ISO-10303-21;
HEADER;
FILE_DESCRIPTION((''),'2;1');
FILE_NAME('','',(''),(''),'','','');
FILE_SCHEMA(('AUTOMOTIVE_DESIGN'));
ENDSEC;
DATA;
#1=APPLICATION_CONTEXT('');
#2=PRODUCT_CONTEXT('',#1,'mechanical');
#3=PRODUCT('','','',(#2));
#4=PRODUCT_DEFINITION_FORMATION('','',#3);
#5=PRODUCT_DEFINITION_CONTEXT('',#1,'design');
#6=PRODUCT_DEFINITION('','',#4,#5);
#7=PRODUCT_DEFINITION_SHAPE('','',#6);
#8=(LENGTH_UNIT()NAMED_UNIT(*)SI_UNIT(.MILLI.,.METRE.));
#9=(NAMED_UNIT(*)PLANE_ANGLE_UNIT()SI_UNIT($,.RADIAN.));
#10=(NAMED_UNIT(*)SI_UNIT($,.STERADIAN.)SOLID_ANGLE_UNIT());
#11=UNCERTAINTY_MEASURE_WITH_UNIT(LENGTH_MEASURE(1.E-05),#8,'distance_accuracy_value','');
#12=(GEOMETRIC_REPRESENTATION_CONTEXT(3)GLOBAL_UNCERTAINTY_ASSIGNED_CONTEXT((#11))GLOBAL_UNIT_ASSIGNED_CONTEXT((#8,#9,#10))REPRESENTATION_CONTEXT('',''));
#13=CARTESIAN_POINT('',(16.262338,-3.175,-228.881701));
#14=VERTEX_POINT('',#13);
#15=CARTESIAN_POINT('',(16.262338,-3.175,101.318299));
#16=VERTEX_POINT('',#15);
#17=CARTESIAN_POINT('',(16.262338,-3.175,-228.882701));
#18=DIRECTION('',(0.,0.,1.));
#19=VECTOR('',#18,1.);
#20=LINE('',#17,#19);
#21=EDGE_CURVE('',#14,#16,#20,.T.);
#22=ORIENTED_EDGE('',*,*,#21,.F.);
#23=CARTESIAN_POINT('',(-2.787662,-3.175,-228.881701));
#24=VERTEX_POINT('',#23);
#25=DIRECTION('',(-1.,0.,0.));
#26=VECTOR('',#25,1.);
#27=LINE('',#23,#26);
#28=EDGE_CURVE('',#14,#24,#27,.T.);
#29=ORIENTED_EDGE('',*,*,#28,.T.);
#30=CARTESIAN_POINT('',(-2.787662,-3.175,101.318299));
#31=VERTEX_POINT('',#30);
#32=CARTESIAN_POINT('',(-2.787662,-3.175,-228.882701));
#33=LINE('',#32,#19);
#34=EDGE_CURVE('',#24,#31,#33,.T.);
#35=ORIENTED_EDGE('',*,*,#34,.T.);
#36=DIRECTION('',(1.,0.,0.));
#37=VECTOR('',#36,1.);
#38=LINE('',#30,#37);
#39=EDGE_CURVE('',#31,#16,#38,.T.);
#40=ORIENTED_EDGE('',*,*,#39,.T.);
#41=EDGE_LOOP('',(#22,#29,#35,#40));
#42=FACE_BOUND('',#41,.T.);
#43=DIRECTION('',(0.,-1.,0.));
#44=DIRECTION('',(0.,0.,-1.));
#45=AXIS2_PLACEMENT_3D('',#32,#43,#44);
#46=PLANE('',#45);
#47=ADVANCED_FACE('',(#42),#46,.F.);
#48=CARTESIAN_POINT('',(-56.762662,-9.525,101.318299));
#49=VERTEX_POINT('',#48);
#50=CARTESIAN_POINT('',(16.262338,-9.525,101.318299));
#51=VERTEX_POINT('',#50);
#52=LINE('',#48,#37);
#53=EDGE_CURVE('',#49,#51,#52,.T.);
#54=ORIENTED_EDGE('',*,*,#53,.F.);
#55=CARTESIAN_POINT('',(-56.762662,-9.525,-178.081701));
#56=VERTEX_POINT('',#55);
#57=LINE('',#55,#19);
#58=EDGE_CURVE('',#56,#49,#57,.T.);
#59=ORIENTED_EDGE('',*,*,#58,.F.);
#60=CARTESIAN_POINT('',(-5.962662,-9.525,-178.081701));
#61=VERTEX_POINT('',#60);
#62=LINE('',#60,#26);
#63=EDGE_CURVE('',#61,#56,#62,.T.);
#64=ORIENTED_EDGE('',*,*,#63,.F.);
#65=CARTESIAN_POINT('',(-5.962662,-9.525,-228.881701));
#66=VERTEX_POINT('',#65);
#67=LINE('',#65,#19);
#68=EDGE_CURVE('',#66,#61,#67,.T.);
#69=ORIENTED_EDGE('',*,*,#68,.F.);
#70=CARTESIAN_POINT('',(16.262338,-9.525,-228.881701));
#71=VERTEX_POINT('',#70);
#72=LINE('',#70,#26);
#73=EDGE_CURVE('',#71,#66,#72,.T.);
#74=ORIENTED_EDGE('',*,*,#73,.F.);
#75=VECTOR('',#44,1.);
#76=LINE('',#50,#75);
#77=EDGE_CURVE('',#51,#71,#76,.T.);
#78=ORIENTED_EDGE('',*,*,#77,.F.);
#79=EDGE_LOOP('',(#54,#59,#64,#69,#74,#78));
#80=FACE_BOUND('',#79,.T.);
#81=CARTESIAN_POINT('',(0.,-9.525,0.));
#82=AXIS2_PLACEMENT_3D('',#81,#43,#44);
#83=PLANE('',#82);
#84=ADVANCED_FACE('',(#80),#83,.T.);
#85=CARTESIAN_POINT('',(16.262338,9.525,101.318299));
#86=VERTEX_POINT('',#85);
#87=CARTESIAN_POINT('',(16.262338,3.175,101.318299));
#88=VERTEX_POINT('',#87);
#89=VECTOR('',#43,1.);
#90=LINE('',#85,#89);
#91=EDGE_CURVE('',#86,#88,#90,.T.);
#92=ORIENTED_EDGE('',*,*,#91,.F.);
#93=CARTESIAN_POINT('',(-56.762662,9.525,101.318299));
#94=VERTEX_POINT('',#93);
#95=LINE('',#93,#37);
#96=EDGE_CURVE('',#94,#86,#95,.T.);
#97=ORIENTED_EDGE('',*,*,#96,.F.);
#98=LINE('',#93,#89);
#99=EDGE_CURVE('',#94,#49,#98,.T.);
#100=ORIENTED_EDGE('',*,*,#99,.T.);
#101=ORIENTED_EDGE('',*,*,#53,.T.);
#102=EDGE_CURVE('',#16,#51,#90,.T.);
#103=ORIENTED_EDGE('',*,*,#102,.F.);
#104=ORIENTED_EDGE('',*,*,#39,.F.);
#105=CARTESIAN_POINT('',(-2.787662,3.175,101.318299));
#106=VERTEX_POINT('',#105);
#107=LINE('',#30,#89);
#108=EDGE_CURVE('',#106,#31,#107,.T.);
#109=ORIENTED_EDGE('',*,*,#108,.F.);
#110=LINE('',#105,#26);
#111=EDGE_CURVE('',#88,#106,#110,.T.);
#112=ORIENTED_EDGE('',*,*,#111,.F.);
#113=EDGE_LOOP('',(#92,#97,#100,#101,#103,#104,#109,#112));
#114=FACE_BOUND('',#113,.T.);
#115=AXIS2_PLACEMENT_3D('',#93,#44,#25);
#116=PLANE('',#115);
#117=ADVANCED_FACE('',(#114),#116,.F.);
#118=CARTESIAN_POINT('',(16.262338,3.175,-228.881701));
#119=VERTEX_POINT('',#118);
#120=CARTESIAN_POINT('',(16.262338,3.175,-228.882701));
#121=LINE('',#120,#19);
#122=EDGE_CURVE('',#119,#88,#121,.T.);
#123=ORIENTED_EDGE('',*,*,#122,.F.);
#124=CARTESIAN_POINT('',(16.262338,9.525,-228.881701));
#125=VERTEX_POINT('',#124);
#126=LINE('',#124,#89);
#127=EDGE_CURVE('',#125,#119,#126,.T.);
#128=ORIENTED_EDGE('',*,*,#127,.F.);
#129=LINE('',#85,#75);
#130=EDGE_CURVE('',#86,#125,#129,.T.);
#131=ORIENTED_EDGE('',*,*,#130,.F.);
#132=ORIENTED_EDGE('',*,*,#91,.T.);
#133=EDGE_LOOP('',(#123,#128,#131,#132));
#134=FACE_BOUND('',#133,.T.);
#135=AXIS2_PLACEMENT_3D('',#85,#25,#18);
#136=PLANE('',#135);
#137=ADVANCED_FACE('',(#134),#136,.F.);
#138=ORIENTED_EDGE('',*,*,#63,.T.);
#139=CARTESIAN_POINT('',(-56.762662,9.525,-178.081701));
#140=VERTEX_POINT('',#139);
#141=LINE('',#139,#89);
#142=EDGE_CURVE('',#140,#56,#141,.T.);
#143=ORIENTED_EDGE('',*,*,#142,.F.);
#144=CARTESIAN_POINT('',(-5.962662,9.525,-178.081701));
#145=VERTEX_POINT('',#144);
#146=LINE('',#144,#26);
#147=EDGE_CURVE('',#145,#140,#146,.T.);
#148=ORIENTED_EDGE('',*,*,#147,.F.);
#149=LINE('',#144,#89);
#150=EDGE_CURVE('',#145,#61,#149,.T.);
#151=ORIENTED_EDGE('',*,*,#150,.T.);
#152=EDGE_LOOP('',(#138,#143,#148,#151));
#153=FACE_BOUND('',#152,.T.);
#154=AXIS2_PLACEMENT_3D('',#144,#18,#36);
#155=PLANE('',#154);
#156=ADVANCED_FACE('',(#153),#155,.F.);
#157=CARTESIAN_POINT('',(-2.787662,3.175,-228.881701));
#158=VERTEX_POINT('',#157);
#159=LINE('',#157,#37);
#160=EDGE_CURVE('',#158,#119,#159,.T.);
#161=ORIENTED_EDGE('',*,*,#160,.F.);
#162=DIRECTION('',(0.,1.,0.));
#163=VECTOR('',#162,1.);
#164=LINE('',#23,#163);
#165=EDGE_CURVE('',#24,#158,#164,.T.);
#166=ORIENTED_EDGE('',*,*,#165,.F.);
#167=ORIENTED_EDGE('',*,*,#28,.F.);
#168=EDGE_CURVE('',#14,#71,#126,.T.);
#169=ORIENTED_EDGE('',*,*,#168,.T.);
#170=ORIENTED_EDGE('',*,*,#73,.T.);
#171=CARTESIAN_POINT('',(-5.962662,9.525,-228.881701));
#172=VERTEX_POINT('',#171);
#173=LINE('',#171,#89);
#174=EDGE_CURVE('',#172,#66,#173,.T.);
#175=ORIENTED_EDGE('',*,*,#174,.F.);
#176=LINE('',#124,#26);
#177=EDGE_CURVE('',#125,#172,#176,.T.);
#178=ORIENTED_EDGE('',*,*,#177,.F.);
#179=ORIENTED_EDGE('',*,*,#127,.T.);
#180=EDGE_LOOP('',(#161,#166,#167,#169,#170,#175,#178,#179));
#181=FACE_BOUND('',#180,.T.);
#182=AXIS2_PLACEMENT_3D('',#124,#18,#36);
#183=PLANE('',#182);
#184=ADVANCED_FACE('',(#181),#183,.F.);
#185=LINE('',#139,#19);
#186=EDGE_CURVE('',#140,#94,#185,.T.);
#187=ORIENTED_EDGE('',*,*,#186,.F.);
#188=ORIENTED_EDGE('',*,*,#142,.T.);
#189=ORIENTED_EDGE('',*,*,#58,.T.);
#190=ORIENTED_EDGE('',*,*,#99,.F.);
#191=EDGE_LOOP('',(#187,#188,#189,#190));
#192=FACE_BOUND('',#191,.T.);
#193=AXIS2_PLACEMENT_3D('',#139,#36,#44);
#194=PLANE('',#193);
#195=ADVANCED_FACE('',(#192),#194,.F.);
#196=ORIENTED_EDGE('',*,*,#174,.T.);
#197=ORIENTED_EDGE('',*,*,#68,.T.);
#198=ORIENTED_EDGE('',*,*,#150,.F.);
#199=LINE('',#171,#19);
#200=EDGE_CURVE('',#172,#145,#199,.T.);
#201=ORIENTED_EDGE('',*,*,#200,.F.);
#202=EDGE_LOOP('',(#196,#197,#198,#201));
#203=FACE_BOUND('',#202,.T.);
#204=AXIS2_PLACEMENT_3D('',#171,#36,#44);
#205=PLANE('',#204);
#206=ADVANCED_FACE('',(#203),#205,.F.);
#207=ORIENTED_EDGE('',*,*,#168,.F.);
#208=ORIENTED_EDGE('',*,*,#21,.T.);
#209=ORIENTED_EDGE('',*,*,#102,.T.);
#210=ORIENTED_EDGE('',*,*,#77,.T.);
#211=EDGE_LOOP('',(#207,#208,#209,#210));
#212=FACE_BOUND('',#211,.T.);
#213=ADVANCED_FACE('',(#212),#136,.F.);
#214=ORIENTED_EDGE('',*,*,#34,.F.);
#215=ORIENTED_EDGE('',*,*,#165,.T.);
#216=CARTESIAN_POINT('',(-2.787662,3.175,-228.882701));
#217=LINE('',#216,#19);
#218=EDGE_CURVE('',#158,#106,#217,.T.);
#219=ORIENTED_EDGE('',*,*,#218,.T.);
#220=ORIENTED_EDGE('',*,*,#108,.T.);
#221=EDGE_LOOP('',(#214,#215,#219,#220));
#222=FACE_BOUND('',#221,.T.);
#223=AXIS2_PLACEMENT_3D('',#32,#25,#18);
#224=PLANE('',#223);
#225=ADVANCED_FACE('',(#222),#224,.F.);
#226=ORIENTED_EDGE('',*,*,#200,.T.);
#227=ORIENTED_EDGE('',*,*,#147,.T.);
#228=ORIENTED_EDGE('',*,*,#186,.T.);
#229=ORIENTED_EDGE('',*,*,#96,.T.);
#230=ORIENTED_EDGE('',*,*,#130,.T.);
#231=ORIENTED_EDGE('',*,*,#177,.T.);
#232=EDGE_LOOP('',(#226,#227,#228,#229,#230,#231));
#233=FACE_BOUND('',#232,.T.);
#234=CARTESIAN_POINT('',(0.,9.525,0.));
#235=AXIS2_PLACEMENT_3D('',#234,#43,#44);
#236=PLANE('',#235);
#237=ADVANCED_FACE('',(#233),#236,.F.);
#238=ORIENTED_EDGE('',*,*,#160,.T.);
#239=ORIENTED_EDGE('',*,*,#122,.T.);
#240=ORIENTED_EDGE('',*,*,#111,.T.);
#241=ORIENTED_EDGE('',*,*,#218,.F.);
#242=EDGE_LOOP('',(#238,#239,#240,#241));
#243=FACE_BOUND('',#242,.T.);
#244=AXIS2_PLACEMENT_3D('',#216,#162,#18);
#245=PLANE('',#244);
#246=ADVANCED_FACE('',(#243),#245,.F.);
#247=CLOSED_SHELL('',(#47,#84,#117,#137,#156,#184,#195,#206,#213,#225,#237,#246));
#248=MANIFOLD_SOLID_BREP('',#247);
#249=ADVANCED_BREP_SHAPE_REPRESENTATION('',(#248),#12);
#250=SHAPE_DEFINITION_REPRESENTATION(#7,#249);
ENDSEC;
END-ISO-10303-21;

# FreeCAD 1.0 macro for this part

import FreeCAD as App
import Part
import Sketcher

V = App.Vector
Q = App.Units.Quantity

doc = App.newDocument("Part")
params = doc.addObject("Spreadsheet::Sheet", "Params")
for row, (alias, value) in enumerate([
    ("sketch1_width", "2 in"),
    ("sketch1_height", "13 in"),
    ("sketch1_width2", "2.875 in"),
    ("pad1_length", "0.75 in"),
    ("sketch2_width", "0.75 in"),
    ("sketch2_height", "0.25 in"),
], start=1):
    params.set(f"A{row}", alias)
    params.set(f"B{row}", "=" + value)
    params.setAlias(f"B{row}", alias)

body = doc.addObject("PartDesign::Body", "Body")

sketch1 = doc.addObject("Sketcher::SketchObject", "Sketch")
body.addObject(sketch1)
sketch1.AttachmentSupport = (doc.XZ_Plane, [""])
sketch1.MapMode = "FlatFace"
sketch1.addGeometry(Part.LineSegment(V(-56.762662, 101.318299, 0), V(16.262338, 101.318299, 0)), False)
sketch1.addGeometry(Part.LineSegment(V(16.262338, 101.318299, 0), V(16.262338, -228.881701, 0)), False)
sketch1.addGeometry(Part.LineSegment(V(16.262338, -228.881701, 0), V(-5.962662, -228.881701, 0)), False)
sketch1.addGeometry(Part.LineSegment(V(-5.962662, -228.881701, 0), V(-5.962662, -178.081701, 0)), False)
sketch1.addGeometry(Part.LineSegment(V(-5.962662, -178.081701, 0), V(-56.762662, -178.081701, 0)), False)
sketch1.addGeometry(Part.LineSegment(V(-56.762662, -178.081701, 0), V(-56.762662, 101.318299, 0)), False)
sketch1.addConstraint(Sketcher.Constraint("Coincident", 0, 2, 1, 1))
sketch1.addConstraint(Sketcher.Constraint("Coincident", 1, 2, 2, 1))
sketch1.addConstraint(Sketcher.Constraint("Coincident", 2, 2, 3, 1))
sketch1.addConstraint(Sketcher.Constraint("Coincident", 3, 2, 4, 1))
sketch1.addConstraint(Sketcher.Constraint("Coincident", 4, 2, 5, 1))
sketch1.addConstraint(Sketcher.Constraint("Coincident", 5, 2, 0, 1))
sketch1.addConstraint(Sketcher.Constraint("Horizontal", 0))
sketch1.addConstraint(Sketcher.Constraint("Vertical", 1))
sketch1.addConstraint(Sketcher.Constraint("Horizontal", 2))
sketch1.addConstraint(Sketcher.Constraint("Vertical", 3))
sketch1.addConstraint(Sketcher.Constraint("Horizontal", 4))
sketch1.addConstraint(Sketcher.Constraint("Vertical", 5))
sketch1.addConstraint(Sketcher.Constraint("Equal", 4, 3))
sketch1.addConstraint(Sketcher.Constraint("DistanceX", 4, 2, 4, 1, Q("2 in")))
sketch1.addConstraint(Sketcher.Constraint("DistanceY", 1, 2, 1, 1, Q("13 in")))
sketch1.addConstraint(Sketcher.Constraint("DistanceX", 0, 1, 0, 2, Q("2.875 in")))
sketch1.addConstraint(Sketcher.Constraint("DistanceY", -1, 1, 0, 2, Q("101.318299 mm")))
sketch1.addConstraint(Sketcher.Constraint("DistanceX", -1, 1, 0, 2, Q("16.262338 mm")))
sketch1.setExpression("Constraints[13]", "Params.sketch1_width")
sketch1.setExpression("Constraints[14]", "Params.sketch1_height")
sketch1.setExpression("Constraints[15]", "Params.sketch1_width2")
pad1 = doc.addObject("PartDesign::Pad", "Pad")
body.addObject(pad1)
pad1.Profile = sketch1
pad1.setExpression("Length", "Params.pad1_length")
pad1.Midplane = True

sketch2 = doc.addObject("Sketcher::SketchObject", "Sketch001")
body.addObject(sketch2)
sketch2.AttachmentSupport = (doc.XY_Plane, [""])
sketch2.MapMode = "FlatFace"
sketch2.AttachmentOffset = App.Placement(V(0, 0, 101.318299), App.Rotation())
sketch2.addGeometry(Part.LineSegment(V(-2.787662, 3.175, 0), V(-2.787662, -3.175, 0)), False)
sketch2.addGeometry(Part.LineSegment(V(-2.787662, -3.175, 0), V(16.262338, -3.175, 0)), False)
sketch2.addGeometry(Part.LineSegment(V(16.262338, -3.175, 0), V(16.262338, 3.175, 0)), False)
sketch2.addGeometry(Part.LineSegment(V(16.262338, 3.175, 0), V(-2.787662, 3.175, 0)), False)
sketch2.addConstraint(Sketcher.Constraint("Coincident", 0, 2, 1, 1))
sketch2.addConstraint(Sketcher.Constraint("Coincident", 1, 2, 2, 1))
sketch2.addConstraint(Sketcher.Constraint("Coincident", 2, 2, 3, 1))
sketch2.addConstraint(Sketcher.Constraint("Coincident", 3, 2, 0, 1))
sketch2.addConstraint(Sketcher.Constraint("Vertical", 0))
sketch2.addConstraint(Sketcher.Constraint("Horizontal", 1))
sketch2.addConstraint(Sketcher.Constraint("Vertical", 2))
sketch2.addConstraint(Sketcher.Constraint("Horizontal", 3))
sketch2.addConstraint(Sketcher.Constraint("DistanceX", 1, 1, 1, 2, Q("0.75 in")))
sketch2.addConstraint(Sketcher.Constraint("DistanceY", 0, 2, 0, 1, Q("0.25 in")))
sketch2.addConstraint(Sketcher.Constraint("DistanceY", 0, 2, -1, 1, Q("0.125 in")))
sketch2.addConstraint(Sketcher.Constraint("DistanceX", 0, 2, -1, 1, Q("2.787662 mm")))
sketch2.setExpression("Constraints[8]", "Params.sketch2_width")
sketch2.setExpression("Constraints[9]", "Params.sketch2_height")
pocket1 = doc.addObject("PartDesign::Pocket", "Pocket")
body.addObject(pocket1)
pocket1.Profile = sketch2
pocket1.Type = "UpToFirst"

doc.recompute()
